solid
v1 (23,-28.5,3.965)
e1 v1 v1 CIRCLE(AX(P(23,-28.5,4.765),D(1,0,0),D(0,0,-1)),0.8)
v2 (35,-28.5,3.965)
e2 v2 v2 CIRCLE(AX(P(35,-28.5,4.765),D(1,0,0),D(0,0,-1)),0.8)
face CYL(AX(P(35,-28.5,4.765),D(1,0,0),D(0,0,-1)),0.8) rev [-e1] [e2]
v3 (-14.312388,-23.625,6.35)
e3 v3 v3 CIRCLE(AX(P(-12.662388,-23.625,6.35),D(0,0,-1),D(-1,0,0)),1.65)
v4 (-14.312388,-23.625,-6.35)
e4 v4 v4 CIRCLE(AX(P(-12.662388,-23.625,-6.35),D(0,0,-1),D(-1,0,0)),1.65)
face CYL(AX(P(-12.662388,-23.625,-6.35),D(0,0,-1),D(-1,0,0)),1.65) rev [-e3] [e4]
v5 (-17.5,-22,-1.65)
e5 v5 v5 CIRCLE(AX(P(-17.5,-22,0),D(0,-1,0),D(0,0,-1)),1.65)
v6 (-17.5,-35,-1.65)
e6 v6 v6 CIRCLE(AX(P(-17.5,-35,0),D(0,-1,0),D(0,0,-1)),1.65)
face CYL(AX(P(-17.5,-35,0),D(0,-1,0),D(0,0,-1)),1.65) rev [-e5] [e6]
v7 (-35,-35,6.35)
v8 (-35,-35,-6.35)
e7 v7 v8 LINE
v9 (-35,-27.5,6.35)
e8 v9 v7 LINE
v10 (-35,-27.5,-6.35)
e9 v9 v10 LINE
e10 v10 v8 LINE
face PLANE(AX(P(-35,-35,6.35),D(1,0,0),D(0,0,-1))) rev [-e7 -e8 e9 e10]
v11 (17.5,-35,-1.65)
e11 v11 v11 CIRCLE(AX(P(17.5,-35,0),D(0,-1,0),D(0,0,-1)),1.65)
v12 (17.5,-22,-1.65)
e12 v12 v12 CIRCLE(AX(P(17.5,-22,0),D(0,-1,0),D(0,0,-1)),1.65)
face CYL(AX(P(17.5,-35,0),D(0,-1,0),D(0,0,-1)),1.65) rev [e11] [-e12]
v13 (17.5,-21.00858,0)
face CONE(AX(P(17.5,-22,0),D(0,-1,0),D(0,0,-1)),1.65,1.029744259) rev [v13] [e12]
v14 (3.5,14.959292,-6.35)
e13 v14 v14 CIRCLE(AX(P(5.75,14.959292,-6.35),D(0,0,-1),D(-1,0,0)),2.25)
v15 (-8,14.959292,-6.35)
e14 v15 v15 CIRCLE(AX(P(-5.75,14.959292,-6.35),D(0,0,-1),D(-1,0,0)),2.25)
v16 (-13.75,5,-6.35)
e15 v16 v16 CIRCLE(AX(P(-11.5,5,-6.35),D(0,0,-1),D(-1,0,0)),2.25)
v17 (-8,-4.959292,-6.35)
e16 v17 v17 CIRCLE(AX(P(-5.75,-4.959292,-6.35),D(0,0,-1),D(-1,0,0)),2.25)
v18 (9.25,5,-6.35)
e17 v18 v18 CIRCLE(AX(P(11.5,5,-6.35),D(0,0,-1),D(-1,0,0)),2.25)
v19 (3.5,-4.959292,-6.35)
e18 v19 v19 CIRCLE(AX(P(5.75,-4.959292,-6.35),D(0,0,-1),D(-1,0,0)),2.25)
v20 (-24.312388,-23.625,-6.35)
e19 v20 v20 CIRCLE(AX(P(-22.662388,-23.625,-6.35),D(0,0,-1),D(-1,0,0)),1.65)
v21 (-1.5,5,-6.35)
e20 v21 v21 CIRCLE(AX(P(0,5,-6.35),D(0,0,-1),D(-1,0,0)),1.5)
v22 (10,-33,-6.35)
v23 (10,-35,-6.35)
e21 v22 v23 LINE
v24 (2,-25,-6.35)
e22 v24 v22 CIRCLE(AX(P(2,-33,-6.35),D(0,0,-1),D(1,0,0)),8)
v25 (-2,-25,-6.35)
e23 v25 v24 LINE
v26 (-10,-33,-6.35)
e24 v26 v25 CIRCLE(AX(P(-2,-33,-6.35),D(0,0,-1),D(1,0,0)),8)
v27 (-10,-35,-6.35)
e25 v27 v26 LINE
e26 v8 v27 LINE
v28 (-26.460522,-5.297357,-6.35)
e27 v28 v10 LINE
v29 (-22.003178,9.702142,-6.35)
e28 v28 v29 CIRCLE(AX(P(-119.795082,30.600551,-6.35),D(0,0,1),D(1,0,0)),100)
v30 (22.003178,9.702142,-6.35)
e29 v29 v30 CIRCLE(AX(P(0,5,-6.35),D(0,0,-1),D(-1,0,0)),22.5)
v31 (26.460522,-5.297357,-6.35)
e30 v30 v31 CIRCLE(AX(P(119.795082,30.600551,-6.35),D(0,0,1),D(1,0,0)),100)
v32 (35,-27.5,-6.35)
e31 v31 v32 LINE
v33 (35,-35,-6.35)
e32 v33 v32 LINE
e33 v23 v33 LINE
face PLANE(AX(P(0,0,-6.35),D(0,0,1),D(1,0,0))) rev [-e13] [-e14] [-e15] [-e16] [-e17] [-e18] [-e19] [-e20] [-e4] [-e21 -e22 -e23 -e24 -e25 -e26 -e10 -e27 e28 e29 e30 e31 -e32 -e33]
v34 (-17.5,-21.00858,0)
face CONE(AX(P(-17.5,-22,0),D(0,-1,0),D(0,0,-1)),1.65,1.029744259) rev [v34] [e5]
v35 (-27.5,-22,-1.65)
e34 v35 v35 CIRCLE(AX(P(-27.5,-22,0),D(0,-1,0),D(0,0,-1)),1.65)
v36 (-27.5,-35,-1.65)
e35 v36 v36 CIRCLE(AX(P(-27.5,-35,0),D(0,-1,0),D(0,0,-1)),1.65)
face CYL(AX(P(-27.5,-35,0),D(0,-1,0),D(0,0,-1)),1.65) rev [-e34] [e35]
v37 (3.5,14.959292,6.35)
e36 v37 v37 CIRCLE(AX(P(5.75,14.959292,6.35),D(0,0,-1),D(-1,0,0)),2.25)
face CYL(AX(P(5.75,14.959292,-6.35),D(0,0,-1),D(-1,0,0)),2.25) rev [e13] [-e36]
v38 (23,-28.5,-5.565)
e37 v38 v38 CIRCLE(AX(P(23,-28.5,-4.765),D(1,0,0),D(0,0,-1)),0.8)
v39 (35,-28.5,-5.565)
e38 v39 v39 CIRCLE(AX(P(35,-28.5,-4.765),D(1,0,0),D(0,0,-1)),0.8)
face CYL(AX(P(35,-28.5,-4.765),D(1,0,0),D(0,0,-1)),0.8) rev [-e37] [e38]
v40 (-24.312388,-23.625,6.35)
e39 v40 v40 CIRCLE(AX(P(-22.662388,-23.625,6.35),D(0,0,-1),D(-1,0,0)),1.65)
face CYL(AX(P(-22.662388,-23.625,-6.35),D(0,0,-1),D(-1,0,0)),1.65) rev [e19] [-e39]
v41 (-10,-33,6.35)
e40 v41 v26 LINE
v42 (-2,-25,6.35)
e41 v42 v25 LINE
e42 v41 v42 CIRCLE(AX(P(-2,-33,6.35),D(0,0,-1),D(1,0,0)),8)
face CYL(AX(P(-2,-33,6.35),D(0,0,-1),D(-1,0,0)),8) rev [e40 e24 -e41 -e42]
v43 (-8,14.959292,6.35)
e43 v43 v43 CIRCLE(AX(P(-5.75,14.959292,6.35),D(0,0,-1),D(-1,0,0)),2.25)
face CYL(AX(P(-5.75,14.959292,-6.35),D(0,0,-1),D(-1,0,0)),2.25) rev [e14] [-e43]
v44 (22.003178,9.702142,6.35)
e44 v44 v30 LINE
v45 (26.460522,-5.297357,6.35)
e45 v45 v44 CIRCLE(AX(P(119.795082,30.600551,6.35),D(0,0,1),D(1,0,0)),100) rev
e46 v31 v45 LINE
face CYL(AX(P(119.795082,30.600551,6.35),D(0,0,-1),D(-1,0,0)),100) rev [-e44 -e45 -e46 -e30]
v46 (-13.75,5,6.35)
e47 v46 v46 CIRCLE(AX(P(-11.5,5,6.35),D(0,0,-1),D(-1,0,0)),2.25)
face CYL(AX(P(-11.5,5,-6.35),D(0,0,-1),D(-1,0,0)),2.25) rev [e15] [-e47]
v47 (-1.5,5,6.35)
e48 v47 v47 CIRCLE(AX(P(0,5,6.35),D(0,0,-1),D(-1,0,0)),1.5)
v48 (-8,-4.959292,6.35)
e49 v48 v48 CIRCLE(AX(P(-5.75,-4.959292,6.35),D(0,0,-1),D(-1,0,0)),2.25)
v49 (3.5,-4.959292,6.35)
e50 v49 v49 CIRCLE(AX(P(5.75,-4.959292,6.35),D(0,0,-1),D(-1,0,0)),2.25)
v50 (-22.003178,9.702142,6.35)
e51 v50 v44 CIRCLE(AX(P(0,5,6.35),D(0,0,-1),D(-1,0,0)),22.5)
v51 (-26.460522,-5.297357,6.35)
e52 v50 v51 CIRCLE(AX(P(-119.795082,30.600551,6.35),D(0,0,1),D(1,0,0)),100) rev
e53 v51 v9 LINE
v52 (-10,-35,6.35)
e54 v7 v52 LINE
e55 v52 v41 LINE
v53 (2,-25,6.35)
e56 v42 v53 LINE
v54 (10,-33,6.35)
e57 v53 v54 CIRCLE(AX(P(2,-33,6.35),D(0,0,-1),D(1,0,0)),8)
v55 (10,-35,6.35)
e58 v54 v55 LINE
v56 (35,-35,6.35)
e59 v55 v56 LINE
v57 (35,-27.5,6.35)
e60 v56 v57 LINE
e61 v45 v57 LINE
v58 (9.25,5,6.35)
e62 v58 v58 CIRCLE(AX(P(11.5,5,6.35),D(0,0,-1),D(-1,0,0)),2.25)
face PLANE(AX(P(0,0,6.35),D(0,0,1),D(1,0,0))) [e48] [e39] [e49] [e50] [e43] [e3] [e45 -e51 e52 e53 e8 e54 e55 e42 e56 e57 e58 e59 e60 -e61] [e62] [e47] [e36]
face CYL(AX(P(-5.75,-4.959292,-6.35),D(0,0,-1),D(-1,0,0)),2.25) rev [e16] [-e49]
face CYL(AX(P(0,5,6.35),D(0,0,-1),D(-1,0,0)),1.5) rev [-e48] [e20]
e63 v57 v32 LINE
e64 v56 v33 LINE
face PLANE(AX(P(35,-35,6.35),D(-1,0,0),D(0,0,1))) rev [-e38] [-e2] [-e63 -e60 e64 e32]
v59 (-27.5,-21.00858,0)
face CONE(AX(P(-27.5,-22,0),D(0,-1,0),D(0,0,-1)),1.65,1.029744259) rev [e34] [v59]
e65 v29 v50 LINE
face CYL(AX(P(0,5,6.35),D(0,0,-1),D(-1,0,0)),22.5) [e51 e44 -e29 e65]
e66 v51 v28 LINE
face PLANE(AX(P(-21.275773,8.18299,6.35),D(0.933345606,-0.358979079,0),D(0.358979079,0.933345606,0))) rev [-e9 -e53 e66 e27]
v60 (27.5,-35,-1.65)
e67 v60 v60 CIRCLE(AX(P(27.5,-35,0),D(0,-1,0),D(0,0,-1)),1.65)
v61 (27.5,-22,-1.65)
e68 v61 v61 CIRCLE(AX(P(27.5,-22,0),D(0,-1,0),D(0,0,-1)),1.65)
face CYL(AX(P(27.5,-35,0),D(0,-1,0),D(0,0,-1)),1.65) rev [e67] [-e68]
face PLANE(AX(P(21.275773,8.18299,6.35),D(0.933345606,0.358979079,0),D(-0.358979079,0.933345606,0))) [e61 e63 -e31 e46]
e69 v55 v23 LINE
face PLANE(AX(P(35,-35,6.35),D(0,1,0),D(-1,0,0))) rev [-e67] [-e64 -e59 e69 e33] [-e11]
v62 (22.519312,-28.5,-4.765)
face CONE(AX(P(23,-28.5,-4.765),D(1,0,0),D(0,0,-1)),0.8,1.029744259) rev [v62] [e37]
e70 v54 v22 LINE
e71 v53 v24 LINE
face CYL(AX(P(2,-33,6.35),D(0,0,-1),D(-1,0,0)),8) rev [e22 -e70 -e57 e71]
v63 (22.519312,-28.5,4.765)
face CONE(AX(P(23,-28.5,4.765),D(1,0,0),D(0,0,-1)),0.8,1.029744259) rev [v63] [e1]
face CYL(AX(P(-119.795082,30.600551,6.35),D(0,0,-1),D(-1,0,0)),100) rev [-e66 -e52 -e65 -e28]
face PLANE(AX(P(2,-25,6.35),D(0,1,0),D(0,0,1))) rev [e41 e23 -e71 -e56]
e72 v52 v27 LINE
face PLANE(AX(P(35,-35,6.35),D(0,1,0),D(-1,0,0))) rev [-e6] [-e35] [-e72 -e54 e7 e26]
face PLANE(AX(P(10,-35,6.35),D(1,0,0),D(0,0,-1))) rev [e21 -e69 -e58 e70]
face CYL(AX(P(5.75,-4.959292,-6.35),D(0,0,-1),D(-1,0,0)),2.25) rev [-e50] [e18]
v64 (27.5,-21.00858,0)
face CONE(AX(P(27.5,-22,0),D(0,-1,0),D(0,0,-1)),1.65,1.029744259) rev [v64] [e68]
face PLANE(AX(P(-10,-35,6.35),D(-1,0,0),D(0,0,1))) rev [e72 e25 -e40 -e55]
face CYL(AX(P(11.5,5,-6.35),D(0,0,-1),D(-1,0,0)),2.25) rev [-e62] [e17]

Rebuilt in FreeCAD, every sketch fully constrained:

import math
import FreeCAD as App
import Part
import Sketcher
Q = App.Units.Quantity


def edges_at(feature, points):
    """Names of the edges that pass closest to the given points."""
    edges = feature.Shape.Edges
    near = lambda p: min(range(len(edges)), key=lambda i: edges[i].distToShape(Part.Vertex(*p))[0])
    return sorted({f"Edge{near(p) + 1}" for p in points})


def add_polygon(sketch, points):
    """Adds a closed chain of lines whose ends are joined by coincident constraints."""
    first, n = sketch.GeometryCount, len(points)
    for a, b in zip(points, points[1:] + points[:1]):
        sketch.addGeometry(Part.LineSegment(App.Vector(*a, 0), App.Vector(*b, 0)), False)
    for i in range(n):
        sketch.addConstraint(Sketcher.Constraint("Coincident", first + i, 2, first + (i + 1) % n, 1))

doc = App.newDocument("Part")
body = doc.addObject("PartDesign::Body", "Body")

sketch1 = body.newObject("Sketcher::SketchObject", "Sketch")
sketch1.AttachmentSupport = (doc.getObject("XY_Plane"), [""])
sketch1.MapMode = "FlatFace"
add_polygon(sketch1, [(-35, 35), (-35, -35), (35, -35), (35, 35)])
sketch1.addConstraint([
    Sketcher.Constraint("Vertical", 0),
    Sketcher.Constraint("Horizontal", 1),
    Sketcher.Constraint("Vertical", 2),
    Sketcher.Constraint("Horizontal", 3),
    Sketcher.Constraint("Symmetric", 0, 2, 2, 2, -1, 1),
    Sketcher.Constraint("Equal", 3, 0),
    Sketcher.Constraint("DistanceX", 1, 1, 1, 2, Q("70 mm")),
])
pad1 = body.newObject("PartDesign::Pad", "Pad")
pad1.Profile = sketch1
pad1.Length = 12.7
pad1.Midplane = True
doc.recompute()

chamfer = body.newObject("PartDesign::Chamfer", "Chamfer")
chamfer.Base = (pad1, edges_at(pad1, [(-35, 35, 0), (35, 35, 0)]))
chamfer.Size = 10

sketch2 = body.newObject("Sketcher::SketchObject", "Sketch001")
sketch2.AttachmentSupport = (doc.getObject("XY_Plane"), [""])
sketch2.MapMode = "FlatFace"
sketch2.AttachmentOffset = App.Placement(App.Vector(0, 0, -6.35), App.Rotation())
sketch2.addGeometry(Part.Circle(App.Vector(0, 5, 0), App.Vector(0, 0, 1), 1.5), False)
sketch2.addConstraint([
    Sketcher.Constraint("PointOnObject", 0, 3, -2),
    Sketcher.Constraint("Diameter", 0, Q("3 mm")),
    Sketcher.Constraint("DistanceY", -1, 1, 0, 3, Q("5 mm")),
])
pocket1 = body.newObject("PartDesign::Pocket", "Pocket")
pocket1.Profile = sketch2
pocket1.Type = "ThroughAll"
pocket1.Reversed = True

sketch3 = body.newObject("Sketcher::SketchObject", "Sketch002")
sketch3.AttachmentSupport = (doc.getObject("XY_Plane"), [""])
sketch3.MapMode = "FlatFace"
sketch3.AttachmentOffset = App.Placement(App.Vector(0, 0, -6.35), App.Rotation())
sketch3.addGeometry([
    Part.Circle(App.Vector(-5.75, 14.959292, 0), App.Vector(0, 0, 1), 2.25),
    Part.Circle(App.Vector(5.75, 14.959292, 0), App.Vector(0, 0, 1), 2.25),
    Part.Circle(App.Vector(11.5, 5, 0), App.Vector(0, 0, 1), 2.25),
    Part.Circle(App.Vector(5.75, -4.959292, 0), App.Vector(0, 0, 1), 2.25),
    Part.Circle(App.Vector(-5.75, -4.959292, 0), App.Vector(0, 0, 1), 2.25),
    Part.Circle(App.Vector(-11.5, 5, 0), App.Vector(0, 0, 1), 2.25),
], False)
sketch3.addConstraint([
    Sketcher.Constraint("Equal", 0, 1),
    Sketcher.Constraint("Equal", 1, 2),
    Sketcher.Constraint("Equal", 2, 3),
    Sketcher.Constraint("Equal", 3, 4),
    Sketcher.Constraint("Equal", 4, 5),
    Sketcher.Constraint("Symmetric", 0, 3, 1, 3, -2),
    Sketcher.Constraint("Symmetric", 3, 3, 4, 3, -2),
    Sketcher.Constraint("Symmetric", 2, 3, 5, 3, -2),
    Sketcher.Constraint("Vertical", 1, 3, 3, 3),
    Sketcher.Constraint("Diameter", 0, Q("4.5 mm")),
    Sketcher.Constraint("DistanceY", -1, 1, 2, 3, Q("5 mm")),
    Sketcher.Constraint("DistanceX", 5, 3, 2, 3, Q("23 mm")),
    Sketcher.Constraint("DistanceX", 0, 3, 1, 3, Q("11.5 mm")),
    Sketcher.Constraint("DistanceY", -1, 1, 0, 3, Q("14.959292 mm")),
    Sketcher.Constraint("DistanceY", 3, 3, -1, 1, Q("4.959292 mm")),
])
doc.recompute()
hole = body.newObject("PartDesign::Hole", "Hole")
hole.Profile = sketch3
hole.ThreadType = "None"
hole.Diameter = 4.5
hole.DepthType = "ThroughAll"
hole.Reversed = True

sketch4 = body.newObject("Sketcher::SketchObject", "Sketch003")
sketch4.AttachmentSupport = (doc.getObject("XY_Plane"), [""])
sketch4.MapMode = "FlatFace"
sketch4.AttachmentOffset = App.Placement(App.Vector(0, 0, -6.35), App.Rotation())
sketch4.addGeometry([
    Part.LineSegment(App.Vector(35, -27.5, 0), App.Vector(22.5, 5, 0)),
    Part.ArcOfCircle(Part.Circle(App.Vector(0, 5, 0), App.Vector(0, 0, 1), 22.5), math.radians(0), math.radians(180)),
    Part.LineSegment(App.Vector(-22.5, 5, 0), App.Vector(-35, -27.5, 0)),
    Part.LineSegment(App.Vector(-35, -27.5, 0), App.Vector(-35, 25, 0)),
    Part.LineSegment(App.Vector(-35, 25, 0), App.Vector(-25, 35, 0)),
    Part.LineSegment(App.Vector(-25, 35, 0), App.Vector(25, 35, 0)),
    Part.LineSegment(App.Vector(25, 35, 0), App.Vector(35, 25, 0)),
    Part.LineSegment(App.Vector(35, 25, 0), App.Vector(35, -27.5, 0)),
], False)
sketch4.addConstraint([
    Sketcher.Constraint("Coincident", 0, 2, 1, 1),
    Sketcher.Constraint("Coincident", 1, 2, 2, 1),
    Sketcher.Constraint("Coincident", 2, 2, 3, 1),
    Sketcher.Constraint("Coincident", 3, 2, 4, 1),
    Sketcher.Constraint("Coincident", 4, 2, 5, 1),
    Sketcher.Constraint("Coincident", 5, 2, 6, 1),
    Sketcher.Constraint("Coincident", 6, 2, 7, 1),
    Sketcher.Constraint("Coincident", 7, 2, 0, 1),
    Sketcher.Constraint("Vertical", 3),
    Sketcher.Constraint("Horizontal", 5),
    Sketcher.Constraint("Vertical", 7),
    Sketcher.Constraint("Symmetric", 0, 2, 1, 2, -2),
    Sketcher.Constraint("Symmetric", 3, 2, 6, 2, -2),
    Sketcher.Constraint("Perpendicular", 4, 6),
    Sketcher.Constraint("Horizontal", 1, 3, 0, 2),
    Sketcher.Constraint("Horizontal", 2, 2, 7, 2),
    Sketcher.Constraint("Equal", 4, 6),
    Sketcher.Constraint("Radius", 1, Q("22.5 mm")),
    Sketcher.Constraint("DistanceX", 5, 1, 5, 2, Q("50 mm")),
    Sketcher.Constraint("DistanceY", 3, 1, 3, 2, Q("52.5 mm")),
    Sketcher.Constraint("DistanceY", -1, 1, 1, 3, Q("5 mm")),
    Sketcher.Constraint("DistanceX", 2, 2, -1, 1, Q("35 mm")),
    Sketcher.Constraint("DistanceY", -1, 1, 3, 2, Q("25 mm")),
])
pocket2 = body.newObject("PartDesign::Pocket", "Pocket001")
pocket2.Profile = sketch4
pocket2.Type = "ThroughAll"
pocket2.Reversed = True
doc.recompute()

fillet = body.newObject("PartDesign::Fillet", "Fillet")
fillet.Base = (pocket2, edges_at(pocket2, [(-22.5, 5, 0), (22.5, 5, 0)]))
fillet.Radius = 100

sketch5 = body.newObject("Sketcher::SketchObject", "Sketch004")
sketch5.AttachmentSupport = (doc.getObject("XY_Plane"), [""])
sketch5.MapMode = "FlatFace"
sketch5.AttachmentOffset = App.Placement(App.Vector(0, 0, -6.35), App.Rotation())
sketch5.addGeometry([
    Part.LineSegment(App.Vector(10, -35, 0), App.Vector(-10, -35, 0)),
    Part.LineSegment(App.Vector(-10, -35, 0), App.Vector(-10, -33, 0)),
    Part.ArcOfCircle(Part.Circle(App.Vector(-2, -33, 0), App.Vector(0, 0, 1), 8), math.radians(90), math.radians(180)),
    Part.LineSegment(App.Vector(-2, -25, 0), App.Vector(2, -25, 0)),
    Part.ArcOfCircle(Part.Circle(App.Vector(2, -33, 0), App.Vector(0, 0, 1), 8), math.radians(0), math.radians(90)),
    Part.LineSegment(App.Vector(10, -33, 0), App.Vector(10, -35, 0)),
], False)
sketch5.addConstraint([
    Sketcher.Constraint("Coincident", 0, 2, 1, 1),
    Sketcher.Constraint("Tangent", 1, 2, 2, 2),
    Sketcher.Constraint("Tangent", 2, 1, 3, 1),
    Sketcher.Constraint("Tangent", 3, 2, 4, 2),
    Sketcher.Constraint("Tangent", 4, 1, 5, 1),
    Sketcher.Constraint("Coincident", 5, 2, 0, 1),
    Sketcher.Constraint("Horizontal", 0),
    Sketcher.Constraint("Vertical", 1),
    Sketcher.Constraint("Horizontal", 3),
    Sketcher.Constraint("Vertical", 5),
    Sketcher.Constraint("Equal", 2, 4),
    Sketcher.Constraint("Radius", 2, Q("8 mm")),
    Sketcher.Constraint("DistanceX", 0, 2, 0, 1, Q("20 mm")),
    Sketcher.Constraint("DistanceY", 1, 1, 1, 2, Q("2 mm")),
    Sketcher.Constraint("DistanceX", 2, 3, -1, 1, Q("2 mm")),
    Sketcher.Constraint("DistanceY", 2, 3, -1, 1, Q("33 mm")),
])
pocket3 = body.newObject("PartDesign::Pocket", "Pocket002")
pocket3.Profile = sketch5
pocket3.Type = "ThroughAll"
pocket3.Reversed = True

sketch6 = body.newObject("Sketcher::SketchObject", "Sketch005")
sketch6.AttachmentSupport = (doc.getObject("XZ_Plane"), [""])
sketch6.MapMode = "FlatFace"
sketch6.AttachmentOffset = App.Placement(App.Vector(0, 0, 35), App.Rotation())
sketch6.addGeometry([
    Part.Circle(App.Vector(27.5, 0, 0), App.Vector(0, 0, 1), 1.65),
    Part.Circle(App.Vector(17.5, 0, 0), App.Vector(0, 0, 1), 1.65),
    Part.Circle(App.Vector(-17.5, 0, 0), App.Vector(0, 0, 1), 1.65),
    Part.Circle(App.Vector(-27.5, 0, 0), App.Vector(0, 0, 1), 1.65),
], False)
sketch6.addConstraint([
    Sketcher.Constraint("Equal", 0, 1),
    Sketcher.Constraint("Equal", 1, 2),
    Sketcher.Constraint("Equal", 2, 3),
    Sketcher.Constraint("Symmetric", 1, 3, 2, 3, -1, 1),
    Sketcher.Constraint("Symmetric", 0, 3, 3, 3, -1, 1),
    Sketcher.Constraint("PointOnObject", 0, 3, -1),
    Sketcher.Constraint("PointOnObject", 1, 3, -1),
    Sketcher.Constraint("Diameter", 0, Q("3.3 mm")),
    Sketcher.Constraint("DistanceX", 1, 3, 0, 3, Q("10 mm")),
    Sketcher.Constraint("DistanceX", 2, 3, 1, 3, Q("35 mm")),
])
doc.recompute()
hole2 = body.newObject("PartDesign::Hole", "Hole001")
hole2.Profile = sketch6
hole2.ThreadType = "None"
hole2.Diameter = 3.3
hole2.DepthType = "Dimension"
hole2.Depth = 13
hole2.DrillPoint = "Angled"
hole2.DrillPointAngle = 118

sketch7 = body.newObject("Sketcher::SketchObject", "Sketch006")
sketch7.AttachmentSupport = (doc.getObject("XY_Plane"), [""])
sketch7.MapMode = "FlatFace"
sketch7.AttachmentOffset = App.Placement(App.Vector(0, 0, -6.35), App.Rotation())
sketch7.addGeometry([
    Part.Circle(App.Vector(-12.662388, -23.625, 0), App.Vector(0, 0, 1), 1.65),
    Part.Circle(App.Vector(-22.662388, -23.625, 0), App.Vector(0, 0, 1), 1.65),
], False)
sketch7.addConstraint([
    Sketcher.Constraint("Equal", 0, 1),
    Sketcher.Constraint("Horizontal", 0, 3, 1, 3),
    Sketcher.Constraint("Diameter", 0, Q("3.3 mm")),
    Sketcher.Constraint("DistanceX", 1, 3, 0, 3, Q("10 mm")),
    Sketcher.Constraint("DistanceY", 0, 3, -1, 1, Q("23.625 mm")),
    Sketcher.Constraint("DistanceX", 0, 3, -1, 1, Q("12.662388 mm")),
])
doc.recompute()
hole3 = body.newObject("PartDesign::Hole", "Hole002")
hole3.Profile = sketch7
hole3.ThreadType = "None"
hole3.Diameter = 3.3
hole3.DepthType = "ThroughAll"
hole3.Reversed = True

sketch8 = body.newObject("Sketcher::SketchObject", "Sketch007")
sketch8.AttachmentSupport = (doc.getObject("YZ_Plane"), [""])
sketch8.MapMode = "FlatFace"
sketch8.AttachmentOffset = App.Placement(App.Vector(0, 0, 35), App.Rotation())
sketch8.addGeometry([
    Part.Circle(App.Vector(-28.5, 4.765, 0), App.Vector(0, 0, 1), 0.8),
    Part.Circle(App.Vector(-28.5, -4.765, 0), App.Vector(0, 0, 1), 0.8),
], False)
sketch8.addConstraint([
    Sketcher.Constraint("Equal", 0, 1),
    Sketcher.Constraint("Symmetric", 0, 3, 1, 3, -1),
    Sketcher.Constraint("Diameter", 0, Q("1.6 mm")),
    Sketcher.Constraint("DistanceX", 0, 3, -1, 1, Q("28.5 mm")),
    Sketcher.Constraint("DistanceY", 1, 3, 0, 3, Q("9.53 mm")),
])
doc.recompute()
hole4 = body.newObject("PartDesign::Hole", "Hole003")
hole4.Profile = sketch8
hole4.ThreadType = "None"
hole4.Diameter = 1.6
hole4.DepthType = "Dimension"
hole4.Depth = 12
hole4.DrillPoint = "Angled"
hole4.DrillPointAngle = 118

doc.recompute()
